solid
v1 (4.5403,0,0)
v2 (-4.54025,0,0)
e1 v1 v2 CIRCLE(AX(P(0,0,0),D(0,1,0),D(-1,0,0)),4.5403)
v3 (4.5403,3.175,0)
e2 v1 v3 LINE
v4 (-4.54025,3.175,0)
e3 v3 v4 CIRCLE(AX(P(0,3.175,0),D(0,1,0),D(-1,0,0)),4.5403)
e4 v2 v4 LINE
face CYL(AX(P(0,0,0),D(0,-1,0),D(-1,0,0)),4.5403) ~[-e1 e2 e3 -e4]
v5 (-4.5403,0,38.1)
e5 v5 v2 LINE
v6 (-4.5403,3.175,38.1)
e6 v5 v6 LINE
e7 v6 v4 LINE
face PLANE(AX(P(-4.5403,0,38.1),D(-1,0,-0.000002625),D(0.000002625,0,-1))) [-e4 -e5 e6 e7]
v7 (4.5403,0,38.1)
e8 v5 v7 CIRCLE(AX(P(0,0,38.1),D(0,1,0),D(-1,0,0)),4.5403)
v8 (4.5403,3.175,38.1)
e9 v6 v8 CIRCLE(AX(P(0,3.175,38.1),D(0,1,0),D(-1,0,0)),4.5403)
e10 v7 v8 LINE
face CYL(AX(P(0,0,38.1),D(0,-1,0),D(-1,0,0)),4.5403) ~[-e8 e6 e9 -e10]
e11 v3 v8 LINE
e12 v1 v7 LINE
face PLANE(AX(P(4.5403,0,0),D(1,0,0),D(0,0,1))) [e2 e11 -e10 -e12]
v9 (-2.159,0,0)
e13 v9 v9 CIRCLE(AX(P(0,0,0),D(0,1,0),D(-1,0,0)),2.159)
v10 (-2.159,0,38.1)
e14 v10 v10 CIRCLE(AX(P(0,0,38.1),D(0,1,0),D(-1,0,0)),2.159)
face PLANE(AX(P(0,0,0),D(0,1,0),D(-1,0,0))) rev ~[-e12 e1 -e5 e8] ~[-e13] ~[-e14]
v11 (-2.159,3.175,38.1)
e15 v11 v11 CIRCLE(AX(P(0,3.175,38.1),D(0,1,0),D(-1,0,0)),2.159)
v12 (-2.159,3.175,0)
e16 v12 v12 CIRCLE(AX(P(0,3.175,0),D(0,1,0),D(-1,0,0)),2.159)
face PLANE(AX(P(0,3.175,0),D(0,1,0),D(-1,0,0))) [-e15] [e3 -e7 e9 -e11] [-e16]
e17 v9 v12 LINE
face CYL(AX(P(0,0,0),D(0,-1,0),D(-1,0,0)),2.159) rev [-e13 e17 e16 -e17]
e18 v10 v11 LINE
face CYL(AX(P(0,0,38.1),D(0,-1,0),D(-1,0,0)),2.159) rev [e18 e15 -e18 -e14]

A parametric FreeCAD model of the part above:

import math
import FreeCAD as App
import Part
import Sketcher
Q = App.Units.Quantity

doc = App.newDocument("Part")
params = doc.addObject("Spreadsheet::Sheet", "Params")
for row, (alias, value) in enumerate([
    ("sketch1_diameter", "0.17 in"),
    ("sketch1_height", "1.5 in"),
    ("pad1_length", "0.125 in"),
], start=1):
    params.set(f"A{row}", alias)
    params.set(f"B{row}", "=" + value)
    params.setAlias(f"B{row}", alias)

body = doc.addObject("PartDesign::Body", "Body")

# Sketch on XZ plane
sketch1 = body.newObject("Sketcher::SketchObject", "Sketch")
sketch1.AttachmentSupport = (doc.getObject("XZ_Plane"), [""])
sketch1.MapMode = "FlatFace"
sketch1.addGeometry([
    Part.ArcOfCircle(Part.Circle(App.Vector(0, 38.1, 0), App.Vector(0, 0, 1), 4.5), math.radians(0), math.radians(180)),  # 0
    Part.LineSegment(App.Vector(4.5, 38.1, 0), App.Vector(4.5, 0, 0)),  # 1
    Part.ArcOfCircle(Part.Circle(App.Vector(0, 0, 0), App.Vector(0, 0, 1), 4.5), math.radians(180), math.radians(360)),  # 2
    Part.LineSegment(App.Vector(-4.5, 0, 0), App.Vector(-4.5, 38.1, 0)),  # 3
    Part.Circle(App.Vector(0, 38.1, 0), App.Vector(0, 0, 1), 2.2),  # 4
    Part.Circle(App.Vector(0, 0, 0), App.Vector(0, 0, 1), 2.2),  # 5
], False)
sketch1.addConstraint([
    Sketcher.Constraint("Tangent", 0, 1, 1, 1),
    Sketcher.Constraint("Tangent", 1, 2, 2, 2),
    Sketcher.Constraint("Tangent", 2, 1, 3, 1),
    Sketcher.Constraint("Tangent", 3, 2, 0, 2),
    Sketcher.Constraint("Vertical", 1),
    Sketcher.Constraint("Vertical", 3),
    Sketcher.Constraint("Coincident", 2, 3, -1, 1),
    Sketcher.Constraint("Coincident", 5, 3, -1, 1),
    Sketcher.Constraint("Coincident", 4, 3, 0, 3),
    Sketcher.Constraint("Equal", 4, 5),
    Sketcher.Constraint("Diameter", 4, Q("0.17 in")),
    Sketcher.Constraint("DistanceY", 1, 2, 1, 1, Q("1.5 in")),
    Sketcher.Constraint("Radius", 0, Q("4.5403 mm")),
])
sketch1.setExpression("Constraints[10]", "Params.sketch1_diameter")
sketch1.setExpression("Constraints[11]", "Params.sketch1_height")
pad1 = body.newObject("PartDesign::Pad", "Pad")
pad1.Profile = sketch1
pad1.setExpression("Length", "Params.pad1_length")
pad1.Reversed = True

doc.recompute()
